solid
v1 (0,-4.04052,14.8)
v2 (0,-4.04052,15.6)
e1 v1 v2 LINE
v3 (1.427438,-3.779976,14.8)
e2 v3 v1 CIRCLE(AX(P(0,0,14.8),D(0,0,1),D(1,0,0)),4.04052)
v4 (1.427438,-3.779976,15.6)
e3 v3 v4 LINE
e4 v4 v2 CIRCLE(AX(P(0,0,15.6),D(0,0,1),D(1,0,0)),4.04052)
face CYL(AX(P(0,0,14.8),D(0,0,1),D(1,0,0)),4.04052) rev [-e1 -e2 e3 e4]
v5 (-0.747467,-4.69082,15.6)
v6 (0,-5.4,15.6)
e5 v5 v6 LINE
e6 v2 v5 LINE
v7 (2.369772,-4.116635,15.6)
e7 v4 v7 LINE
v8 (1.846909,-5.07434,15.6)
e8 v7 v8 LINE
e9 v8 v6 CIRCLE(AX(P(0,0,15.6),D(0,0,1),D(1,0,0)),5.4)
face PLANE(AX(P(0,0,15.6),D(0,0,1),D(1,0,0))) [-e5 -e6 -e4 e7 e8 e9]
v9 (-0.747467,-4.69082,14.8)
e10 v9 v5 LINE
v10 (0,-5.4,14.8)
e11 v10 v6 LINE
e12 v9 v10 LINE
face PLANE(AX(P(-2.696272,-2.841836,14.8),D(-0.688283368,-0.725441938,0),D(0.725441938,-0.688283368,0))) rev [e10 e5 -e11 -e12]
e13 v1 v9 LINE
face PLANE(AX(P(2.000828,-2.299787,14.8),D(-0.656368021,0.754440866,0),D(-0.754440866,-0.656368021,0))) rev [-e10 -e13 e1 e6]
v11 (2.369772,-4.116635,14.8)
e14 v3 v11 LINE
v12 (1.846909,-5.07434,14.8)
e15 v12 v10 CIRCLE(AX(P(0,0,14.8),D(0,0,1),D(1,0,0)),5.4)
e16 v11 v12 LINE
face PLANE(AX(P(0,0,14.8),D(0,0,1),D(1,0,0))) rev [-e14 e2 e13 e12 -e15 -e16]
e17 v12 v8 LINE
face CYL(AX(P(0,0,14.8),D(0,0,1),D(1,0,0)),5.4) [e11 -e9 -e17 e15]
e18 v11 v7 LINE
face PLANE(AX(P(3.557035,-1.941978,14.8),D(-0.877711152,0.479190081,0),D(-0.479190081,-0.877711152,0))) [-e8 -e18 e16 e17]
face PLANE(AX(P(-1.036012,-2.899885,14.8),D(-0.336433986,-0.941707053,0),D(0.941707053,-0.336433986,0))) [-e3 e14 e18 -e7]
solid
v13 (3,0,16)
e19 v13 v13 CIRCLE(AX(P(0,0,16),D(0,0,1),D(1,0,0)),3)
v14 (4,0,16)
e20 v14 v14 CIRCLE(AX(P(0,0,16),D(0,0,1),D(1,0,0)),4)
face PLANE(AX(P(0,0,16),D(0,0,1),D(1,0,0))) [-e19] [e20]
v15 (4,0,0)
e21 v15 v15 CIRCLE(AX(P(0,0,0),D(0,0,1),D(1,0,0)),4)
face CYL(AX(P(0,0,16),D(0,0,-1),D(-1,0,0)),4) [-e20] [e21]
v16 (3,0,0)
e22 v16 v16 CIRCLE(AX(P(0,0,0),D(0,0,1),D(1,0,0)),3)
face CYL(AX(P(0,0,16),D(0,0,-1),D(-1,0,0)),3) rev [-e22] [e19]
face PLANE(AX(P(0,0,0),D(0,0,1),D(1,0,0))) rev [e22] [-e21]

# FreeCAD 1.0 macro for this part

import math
import FreeCAD as App
import Part
import Sketcher
from FreeCAD import Vector

doc = App.newDocument("Part")
params = doc.addObject("Spreadsheet::Sheet", "Params")
for row, (alias, value) in enumerate([
    ("sketch1_diameter", "8 mm"),
    ("sketch1_diameter2", "6 mm"),
    ("pad1_length", "16 mm"),
    ("sketch2_radius", "5.4 mm"),
    ("pad2_length", "0.8 mm"),
], start=1):
    params.set(f"A{row}", alias)
    params.set(f"B{row}", "=" + value)
    params.setAlias(f"B{row}", alias)

body = doc.addObject("PartDesign::Body", "Body")

# Sketch on XY plane
sketch1 = body.newObject("Sketcher::SketchObject", "Sketch")
sketch1.AttachmentSupport = (doc.getObject("XY_Plane"), [""])
sketch1.MapMode = "FlatFace"
sketch1.addGeometry(Part.Circle(Vector(0, 0, 0), Vector(0, 0, 1), 4), False)
sketch1.addGeometry(Part.Circle(Vector(0, 0, 0), Vector(0, 0, 1), 3), False)
sketch1.addConstraint(Sketcher.Constraint("Coincident", 0, 3, -1, 1))
sketch1.addConstraint(Sketcher.Constraint("Coincident", 1, 3, -1, 1))
sketch1.addConstraint(Sketcher.Constraint("Diameter", 0, 8.0))
sketch1.addConstraint(Sketcher.Constraint("Diameter", 1, 6.0))
sketch1.setExpression("Constraints[2]", "Params.sketch1_diameter")
sketch1.setExpression("Constraints[3]", "Params.sketch1_diameter2")
pad1 = body.newObject("PartDesign::Pad", "Pad")
pad1.Profile = sketch1
pad1.setExpression("Length", "Params.pad1_length")
body2 = doc.addObject("PartDesign::Body", "Body001")

# Sketch on XY plane
sketch2 = body2.newObject("Sketcher::SketchObject", "Sketch001")
sketch2.AttachmentSupport = (doc.getObject("XY_Plane001"), [""])
sketch2.MapMode = "FlatFace"
sketch2.AttachmentOffset = App.Placement(Vector(0, 0, 15.6), App.Rotation())
sketch2.addGeometry(Part.LineSegment(Vector(0, -5.4, 0), Vector(-0.7, -4.7, 0)), False)
sketch2.addGeometry(Part.LineSegment(Vector(-0.7, -4.7, 0), Vector(0, -4, 0)), False)
sketch2.addGeometry(Part.ArcOfCircle(Part.Circle(Vector(0, 0, 0), Vector(0, 0, 1), 4), math.radians(0), math.radians(270)), False)
sketch2.addGeometry(Part.ArcOfCircle(Part.Circle(Vector(0, 0, 0), Vector(0, 0, 1), 4), math.radians(-69), math.radians(0)), False)
sketch2.addGeometry(Part.LineSegment(Vector(1.4, -3.8, 0), Vector(2.4, -4.1, 0)), False)
sketch2.addGeometry(Part.LineSegment(Vector(2.4, -4.1, 0), Vector(1.8, -5.1, 0)), False)
sketch2.addGeometry(Part.ArcOfCircle(Part.Circle(Vector(0, 0, 0), Vector(0, 0, 1), 5.4), math.radians(-70), math.radians(0)), False)
sketch2.addGeometry(Part.ArcOfCircle(Part.Circle(Vector(0, 0, 0), Vector(0, 0, 1), 5.4), math.radians(0), math.radians(270)), False)
sketch2.addConstraint(Sketcher.Constraint("Coincident", 0, 2, 1, 1))
sketch2.addConstraint(Sketcher.Constraint("Coincident", 1, 2, 2, 2))
sketch2.addConstraint(Sketcher.Constraint("Tangent", 2, 1, 3, 2))
sketch2.addConstraint(Sketcher.Constraint("Coincident", 3, 1, 4, 1))
sketch2.addConstraint(Sketcher.Constraint("Coincident", 4, 2, 5, 1))
sketch2.addConstraint(Sketcher.Constraint("Coincident", 5, 2, 6, 1))
sketch2.addConstraint(Sketcher.Constraint("Tangent", 6, 2, 7, 1))
sketch2.addConstraint(Sketcher.Constraint("Coincident", 7, 2, 0, 1))
sketch2.addConstraint(Sketcher.Constraint("Coincident", 2, 3, -1, 1))
sketch2.addConstraint(Sketcher.Constraint("Coincident", 6, 3, -1, 1))
sketch2.addConstraint(Sketcher.Constraint("Equal", 2, 3))
sketch2.addConstraint(Sketcher.Constraint("Equal", 6, 7))
sketch2.addConstraint(Sketcher.Constraint("PointOnObject", 1, 2, -2))
sketch2.addConstraint(Sketcher.Constraint("PointOnObject", 2, 1, -1))
sketch2.addConstraint(Sketcher.Constraint("PointOnObject", 6, 2, -1))
sketch2.addConstraint(Sketcher.Constraint("PointOnObject", 7, 2, -2))
sketch2.addConstraint(Sketcher.Constraint("Radius", 6, 5.4))
sketch2.addConstraint(Sketcher.Constraint("Radius", 2, 4.04052))
sketch2.addConstraint(Sketcher.Constraint("DistanceY", 0, 2, 1, 2, 0.6503))
sketch2.addConstraint(Sketcher.Constraint("Distance", 0, 1.03036))
sketch2.addConstraint(Sketcher.Constraint("Distance", 5, 1.09114))
sketch2.addConstraint(Sketcher.Constraint("DistanceX", -1, 1, 5, 2, 1.846909))
sketch2.addConstraint(Sketcher.Constraint("DistanceY", 4, 2, 3, 1, 0.336658))
sketch2.addConstraint(Sketcher.Constraint("DistanceX", 0, 2, 4, 2, 3.117239))
sketch2.setExpression("Constraints[16]", "Params.sketch2_radius")
pad2 = body2.newObject("PartDesign::Pad", "Pad001")
pad2.Profile = sketch2
pad2.setExpression("Length", "Params.pad2_length")
pad2.Reversed = True

doc.recompute()
